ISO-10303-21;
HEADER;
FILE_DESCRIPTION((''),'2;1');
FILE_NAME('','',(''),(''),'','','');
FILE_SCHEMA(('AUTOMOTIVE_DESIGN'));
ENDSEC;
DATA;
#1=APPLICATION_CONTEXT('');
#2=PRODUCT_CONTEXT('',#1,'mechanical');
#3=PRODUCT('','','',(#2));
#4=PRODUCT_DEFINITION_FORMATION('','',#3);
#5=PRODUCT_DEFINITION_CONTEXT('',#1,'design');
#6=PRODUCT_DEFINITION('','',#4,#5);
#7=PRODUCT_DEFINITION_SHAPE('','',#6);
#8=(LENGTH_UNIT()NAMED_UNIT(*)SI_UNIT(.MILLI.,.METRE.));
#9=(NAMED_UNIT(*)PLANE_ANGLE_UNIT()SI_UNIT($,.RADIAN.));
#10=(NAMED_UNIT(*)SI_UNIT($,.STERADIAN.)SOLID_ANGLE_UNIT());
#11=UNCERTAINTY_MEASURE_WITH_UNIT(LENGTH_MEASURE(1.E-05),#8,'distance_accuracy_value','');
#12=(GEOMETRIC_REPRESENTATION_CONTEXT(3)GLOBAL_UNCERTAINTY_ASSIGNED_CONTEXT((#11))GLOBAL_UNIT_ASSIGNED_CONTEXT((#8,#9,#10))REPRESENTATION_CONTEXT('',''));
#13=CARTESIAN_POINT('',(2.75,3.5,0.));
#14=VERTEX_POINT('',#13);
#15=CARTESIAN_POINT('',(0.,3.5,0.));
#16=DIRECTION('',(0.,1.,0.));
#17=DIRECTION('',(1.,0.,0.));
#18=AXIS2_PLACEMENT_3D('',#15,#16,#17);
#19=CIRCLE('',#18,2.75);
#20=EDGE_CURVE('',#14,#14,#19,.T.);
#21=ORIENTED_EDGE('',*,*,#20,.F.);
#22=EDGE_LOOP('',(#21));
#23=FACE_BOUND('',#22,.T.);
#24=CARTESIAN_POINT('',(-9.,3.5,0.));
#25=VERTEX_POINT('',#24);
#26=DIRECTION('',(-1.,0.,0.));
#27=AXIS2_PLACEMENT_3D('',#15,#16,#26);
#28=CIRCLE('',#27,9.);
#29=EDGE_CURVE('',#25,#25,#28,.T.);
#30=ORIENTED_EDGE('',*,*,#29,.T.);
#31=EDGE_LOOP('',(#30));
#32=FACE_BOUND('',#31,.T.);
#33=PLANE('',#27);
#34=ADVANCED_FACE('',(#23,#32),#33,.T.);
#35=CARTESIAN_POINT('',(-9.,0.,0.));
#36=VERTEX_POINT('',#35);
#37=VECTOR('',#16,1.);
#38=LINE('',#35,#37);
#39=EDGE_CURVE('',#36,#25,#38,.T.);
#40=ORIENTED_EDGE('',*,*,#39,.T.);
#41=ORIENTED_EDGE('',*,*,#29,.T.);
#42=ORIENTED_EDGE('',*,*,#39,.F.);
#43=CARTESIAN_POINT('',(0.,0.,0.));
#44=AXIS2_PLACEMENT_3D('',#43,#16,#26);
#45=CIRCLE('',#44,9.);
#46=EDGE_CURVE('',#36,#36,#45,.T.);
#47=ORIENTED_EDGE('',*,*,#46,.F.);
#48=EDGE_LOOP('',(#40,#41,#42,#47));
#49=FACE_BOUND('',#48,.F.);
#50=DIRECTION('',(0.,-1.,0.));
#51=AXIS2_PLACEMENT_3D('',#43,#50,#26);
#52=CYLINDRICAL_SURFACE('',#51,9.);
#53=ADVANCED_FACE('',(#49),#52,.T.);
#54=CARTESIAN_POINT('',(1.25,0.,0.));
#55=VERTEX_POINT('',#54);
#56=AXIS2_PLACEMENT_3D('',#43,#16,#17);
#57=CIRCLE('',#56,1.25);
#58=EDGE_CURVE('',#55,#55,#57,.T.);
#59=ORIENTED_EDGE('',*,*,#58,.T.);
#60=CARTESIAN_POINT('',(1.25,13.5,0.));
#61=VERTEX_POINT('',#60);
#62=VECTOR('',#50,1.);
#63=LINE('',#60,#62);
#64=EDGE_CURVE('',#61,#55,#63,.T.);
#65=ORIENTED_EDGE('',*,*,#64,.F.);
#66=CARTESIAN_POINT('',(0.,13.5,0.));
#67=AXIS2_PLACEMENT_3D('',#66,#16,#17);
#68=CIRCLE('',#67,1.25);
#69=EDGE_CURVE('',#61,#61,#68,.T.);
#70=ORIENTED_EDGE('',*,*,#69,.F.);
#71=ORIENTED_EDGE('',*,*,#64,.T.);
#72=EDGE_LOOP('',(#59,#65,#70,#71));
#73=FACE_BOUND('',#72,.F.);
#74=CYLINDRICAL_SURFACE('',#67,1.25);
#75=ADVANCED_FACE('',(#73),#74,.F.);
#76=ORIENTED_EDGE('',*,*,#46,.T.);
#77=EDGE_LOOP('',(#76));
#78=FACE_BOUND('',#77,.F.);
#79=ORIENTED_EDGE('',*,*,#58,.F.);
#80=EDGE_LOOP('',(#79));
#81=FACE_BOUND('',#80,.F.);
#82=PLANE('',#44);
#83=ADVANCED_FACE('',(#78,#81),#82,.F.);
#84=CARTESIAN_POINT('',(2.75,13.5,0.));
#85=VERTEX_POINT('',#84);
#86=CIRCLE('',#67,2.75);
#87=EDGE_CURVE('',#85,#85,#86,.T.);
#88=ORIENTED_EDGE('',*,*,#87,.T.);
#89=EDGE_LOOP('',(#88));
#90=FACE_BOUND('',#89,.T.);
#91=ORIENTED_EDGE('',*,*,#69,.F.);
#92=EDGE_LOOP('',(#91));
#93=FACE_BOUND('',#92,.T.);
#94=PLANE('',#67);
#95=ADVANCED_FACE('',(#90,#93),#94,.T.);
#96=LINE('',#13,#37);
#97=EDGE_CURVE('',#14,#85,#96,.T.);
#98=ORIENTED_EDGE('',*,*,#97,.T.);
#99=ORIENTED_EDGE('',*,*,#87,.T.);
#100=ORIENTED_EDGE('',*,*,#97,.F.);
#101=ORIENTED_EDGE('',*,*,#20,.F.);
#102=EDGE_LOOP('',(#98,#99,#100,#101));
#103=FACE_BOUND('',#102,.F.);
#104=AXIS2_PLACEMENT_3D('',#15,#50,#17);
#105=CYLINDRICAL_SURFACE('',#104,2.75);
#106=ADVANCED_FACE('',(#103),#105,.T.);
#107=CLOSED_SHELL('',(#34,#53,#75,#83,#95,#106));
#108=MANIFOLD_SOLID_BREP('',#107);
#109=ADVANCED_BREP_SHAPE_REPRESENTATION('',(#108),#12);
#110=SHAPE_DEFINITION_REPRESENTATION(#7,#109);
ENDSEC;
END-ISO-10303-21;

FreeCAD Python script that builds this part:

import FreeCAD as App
import Part
import Sketcher

doc = App.newDocument("Part")
body = doc.addObject("PartDesign::Body", "Body")

sketch1 = doc.addObject("Sketcher::SketchObject", "Sketch")
body.addObject(sketch1)
sketch1.AttachmentSupport = (doc.XZ_Plane, [""])
sketch1.MapMode = "FlatFace"
sketch1.addGeometry(Part.Circle(App.Vector(0, 0, 0), App.Vector(0, 0, 1), 9), False)
sketch1.addConstraint([
    Sketcher.Constraint("Coincident", 0, 3, -1, 1),
    Sketcher.Constraint("Diameter", 0, 18.0),
])
pad1 = doc.addObject("PartDesign::Pad", "Pad")
body.addObject(pad1)
pad1.Profile = sketch1
pad1.Length = 3.5
pad1.Reversed = True

sketch2 = doc.addObject("Sketcher::SketchObject", "Sketch001")
body.addObject(sketch2)
sketch2.AttachmentSupport = (doc.XZ_Plane, [""])
sketch2.MapMode = "FlatFace"
sketch2.AttachmentOffset = App.Placement(App.Vector(0, 0, -3.5), App.Rotation())
sketch2.addGeometry(Part.Circle(App.Vector(0, 0, 0), App.Vector(0, 0, 1), 2.8), False)
sketch2.addConstraint([
    Sketcher.Constraint("Coincident", 0, 3, -1, 1),
    Sketcher.Constraint("Diameter", 0, 5.5),
])
pad2 = doc.addObject("PartDesign::Pad", "Pad001")
body.addObject(pad2)
pad2.Profile = sketch2
pad2.Length = 10
pad2.Reversed = True

sketch3 = doc.addObject("Sketcher::SketchObject", "Sketch002")
body.addObject(sketch3)
sketch3.AttachmentSupport = (doc.XZ_Plane, [""])
sketch3.MapMode = "FlatFace"
sketch3.AttachmentOffset = App.Placement(App.Vector(0, 0, -13.5), App.Rotation())
sketch3.addGeometry(Part.Circle(App.Vector(0, 0, 0), App.Vector(0, 0, 1), 1.2), False)
sketch3.addConstraint([
    Sketcher.Constraint("Coincident", 0, 3, -1, 1),
    Sketcher.Constraint("Diameter", 0, 2.5),
])
pocket1 = doc.addObject("PartDesign::Pocket", "Pocket")
body.addObject(pocket1)
pocket1.Profile = sketch3
pocket1.Length = 13.5
pocket1.Reversed = True

doc.recompute()
